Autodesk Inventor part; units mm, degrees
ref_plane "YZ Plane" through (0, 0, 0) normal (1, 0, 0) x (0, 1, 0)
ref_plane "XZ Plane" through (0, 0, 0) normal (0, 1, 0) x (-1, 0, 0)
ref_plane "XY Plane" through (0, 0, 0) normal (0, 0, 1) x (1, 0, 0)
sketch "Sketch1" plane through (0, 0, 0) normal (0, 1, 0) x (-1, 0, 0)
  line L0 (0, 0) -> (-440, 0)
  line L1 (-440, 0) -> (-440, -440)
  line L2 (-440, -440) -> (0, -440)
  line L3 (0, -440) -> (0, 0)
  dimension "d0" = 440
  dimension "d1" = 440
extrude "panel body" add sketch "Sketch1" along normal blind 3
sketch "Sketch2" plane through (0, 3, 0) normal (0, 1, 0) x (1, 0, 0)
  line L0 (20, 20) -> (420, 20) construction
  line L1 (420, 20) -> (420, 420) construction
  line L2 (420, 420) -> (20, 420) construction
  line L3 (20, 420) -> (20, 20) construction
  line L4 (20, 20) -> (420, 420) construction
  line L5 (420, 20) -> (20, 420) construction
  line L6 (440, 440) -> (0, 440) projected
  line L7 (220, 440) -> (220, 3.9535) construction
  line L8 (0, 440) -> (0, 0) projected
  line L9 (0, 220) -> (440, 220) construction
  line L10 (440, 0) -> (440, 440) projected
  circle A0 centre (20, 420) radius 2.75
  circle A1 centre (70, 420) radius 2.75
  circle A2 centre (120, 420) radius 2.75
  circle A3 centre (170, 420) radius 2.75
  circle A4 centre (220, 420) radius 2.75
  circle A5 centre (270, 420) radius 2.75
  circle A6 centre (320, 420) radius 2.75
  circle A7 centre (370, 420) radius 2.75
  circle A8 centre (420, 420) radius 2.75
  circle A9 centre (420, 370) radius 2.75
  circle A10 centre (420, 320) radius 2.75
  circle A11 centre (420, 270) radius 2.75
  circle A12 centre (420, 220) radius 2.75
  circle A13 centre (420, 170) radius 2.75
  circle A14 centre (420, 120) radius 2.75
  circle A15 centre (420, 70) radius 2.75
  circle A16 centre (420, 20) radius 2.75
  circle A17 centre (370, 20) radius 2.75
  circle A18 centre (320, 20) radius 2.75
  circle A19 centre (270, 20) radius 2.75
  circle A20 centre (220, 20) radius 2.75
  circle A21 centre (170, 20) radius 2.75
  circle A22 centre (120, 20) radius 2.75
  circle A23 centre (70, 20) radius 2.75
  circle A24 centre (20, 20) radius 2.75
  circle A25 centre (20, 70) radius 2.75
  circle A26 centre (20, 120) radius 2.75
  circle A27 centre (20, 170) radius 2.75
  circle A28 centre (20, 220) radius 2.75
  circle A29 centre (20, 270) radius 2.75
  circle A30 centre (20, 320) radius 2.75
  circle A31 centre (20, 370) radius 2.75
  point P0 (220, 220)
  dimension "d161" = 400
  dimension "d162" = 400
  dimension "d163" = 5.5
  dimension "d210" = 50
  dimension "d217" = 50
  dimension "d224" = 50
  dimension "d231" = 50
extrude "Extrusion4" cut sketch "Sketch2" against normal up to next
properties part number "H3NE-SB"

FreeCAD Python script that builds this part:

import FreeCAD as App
import Part
import Sketcher
from FreeCAD import Vector

doc = App.newDocument("Part")
body = doc.addObject("PartDesign::Body", "Body")

# Sketch on XZ plane
sketch1 = body.newObject("Sketcher::SketchObject", "Sketch")
sketch1.AttachmentSupport = (doc.getObject("XZ_Plane"), [""])
sketch1.MapMode = "FlatFace"
sketch1.addGeometry(Part.LineSegment(Vector(0, -440, 0), Vector(0, 0, 0)), False)
sketch1.addGeometry(Part.LineSegment(Vector(0, 0, 0), Vector(440, 0, 0)), False)
sketch1.addGeometry(Part.LineSegment(Vector(440, 0, 0), Vector(440, -440, 0)), False)
sketch1.addGeometry(Part.LineSegment(Vector(440, -440, 0), Vector(0, -440, 0)), False)
sketch1.addConstraint(Sketcher.Constraint("Coincident", 0, 2, 1, 1))
sketch1.addConstraint(Sketcher.Constraint("Coincident", 1, 2, 2, 1))
sketch1.addConstraint(Sketcher.Constraint("Coincident", 2, 2, 3, 1))
sketch1.addConstraint(Sketcher.Constraint("Coincident", 3, 2, 0, 1))
sketch1.addConstraint(Sketcher.Constraint("Vertical", 0))
sketch1.addConstraint(Sketcher.Constraint("Horizontal", 1))
sketch1.addConstraint(Sketcher.Constraint("Vertical", 2))
sketch1.addConstraint(Sketcher.Constraint("Horizontal", 3))
sketch1.addConstraint(Sketcher.Constraint("Coincident", 0, 2, -1, 1))
sketch1.addConstraint(Sketcher.Constraint("Equal", 3, 0))
sketch1.addConstraint(Sketcher.Constraint("DistanceX", 1, 1, 1, 2, 440.0))
pad1 = body.newObject("PartDesign::Pad", "Pad")
pad1.Profile = sketch1
pad1.Length = 3
pad1.Reversed = True

# Sketch on XZ plane
sketch2 = body.newObject("Sketcher::SketchObject", "Sketch001")
sketch2.AttachmentSupport = (doc.getObject("XZ_Plane"), [""])
sketch2.MapMode = "FlatFace"
sketch2.AttachmentOffset = App.Placement(Vector(0, 0, -3), App.Rotation())
sketch2.addGeometry(Part.Circle(Vector(20, -420, 0), Vector(0, 0, 1), 2.8), False)
sketch2.addGeometry(Part.Circle(Vector(70, -420, 0), Vector(0, 0, 1), 2.8), False)
sketch2.addGeometry(Part.Circle(Vector(120, -420, 0), Vector(0, 0, 1), 2.8), False)
sketch2.addGeometry(Part.Circle(Vector(170, -420, 0), Vector(0, 0, 1), 2.8), False)
sketch2.addGeometry(Part.Circle(Vector(220, -420, 0), Vector(0, 0, 1), 2.8), False)
sketch2.addGeometry(Part.Circle(Vector(270, -420, 0), Vector(0, 0, 1), 2.8), False)
sketch2.addGeometry(Part.Circle(Vector(320, -420, 0), Vector(0, 0, 1), 2.8), False)
sketch2.addGeometry(Part.Circle(Vector(370, -420, 0), Vector(0, 0, 1), 2.8), False)
sketch2.addGeometry(Part.Circle(Vector(420, -420, 0), Vector(0, 0, 1), 2.8), False)
sketch2.addGeometry(Part.Circle(Vector(420, -370, 0), Vector(0, 0, 1), 2.8), False)
sketch2.addGeometry(Part.Circle(Vector(420, -320, 0), Vector(0, 0, 1), 2.8), False)
sketch2.addGeometry(Part.Circle(Vector(420, -270, 0), Vector(0, 0, 1), 2.8), False)
sketch2.addGeometry(Part.Circle(Vector(420, -220, 0), Vector(0, 0, 1), 2.8), False)
sketch2.addGeometry(Part.Circle(Vector(420, -170, 0), Vector(0, 0, 1), 2.8), False)
sketch2.addGeometry(Part.Circle(Vector(420, -120, 0), Vector(0, 0, 1), 2.8), False)
sketch2.addGeometry(Part.Circle(Vector(420, -70, 0), Vector(0, 0, 1), 2.8), False)
sketch2.addGeometry(Part.Circle(Vector(420, -20, 0), Vector(0, 0, 1), 2.8), False)
sketch2.addGeometry(Part.Circle(Vector(370, -20, 0), Vector(0, 0, 1), 2.8), False)
sketch2.addGeometry(Part.Circle(Vector(320, -20, 0), Vector(0, 0, 1), 2.8), False)
sketch2.addGeometry(Part.Circle(Vector(270, -20, 0), Vector(0, 0, 1), 2.8), False)
sketch2.addGeometry(Part.Circle(Vector(220, -20, 0), Vector(0, 0, 1), 2.8), False)
sketch2.addGeometry(Part.Circle(Vector(170, -20, 0), Vector(0, 0, 1), 2.8), False)
sketch2.addGeometry(Part.Circle(Vector(120, -20, 0), Vector(0, 0, 1), 2.8), False)
sketch2.addGeometry(Part.Circle(Vector(70, -20, 0), Vector(0, 0, 1), 2.8), False)
sketch2.addGeometry(Part.Circle(Vector(20, -20, 0), Vector(0, 0, 1), 2.8), False)
sketch2.addGeometry(Part.Circle(Vector(20, -70, 0), Vector(0, 0, 1), 2.8), False)
sketch2.addGeometry(Part.Circle(Vector(20, -120, 0), Vector(0, 0, 1), 2.8), False)
sketch2.addGeometry(Part.Circle(Vector(20, -170, 0), Vector(0, 0, 1), 2.8), False)
sketch2.addGeometry(Part.Circle(Vector(20, -220, 0), Vector(0, 0, 1), 2.8), False)
sketch2.addGeometry(Part.Circle(Vector(20, -270, 0), Vector(0, 0, 1), 2.8), False)
sketch2.addGeometry(Part.Circle(Vector(20, -320, 0), Vector(0, 0, 1), 2.8), False)
sketch2.addGeometry(Part.Circle(Vector(20, -370, 0), Vector(0, 0, 1), 2.8), False)
sketch2.addConstraint(Sketcher.Constraint("Equal", 0, 1))
sketch2.addConstraint(Sketcher.Constraint("Equal", 1, 2))
sketch2.addConstraint(Sketcher.Constraint("Equal", 2, 3))
sketch2.addConstraint(Sketcher.Constraint("Equal", 3, 4))
sketch2.addConstraint(Sketcher.Constraint("Equal", 4, 5))
sketch2.addConstraint(Sketcher.Constraint("Equal", 5, 6))
sketch2.addConstraint(Sketcher.Constraint("Equal", 6, 7))
sketch2.addConstraint(Sketcher.Constraint("Equal", 7, 8))
sketch2.addConstraint(Sketcher.Constraint("Equal", 8, 9))
sketch2.addConstraint(Sketcher.Constraint("Equal", 9, 10))
sketch2.addConstraint(Sketcher.Constraint("Equal", 10, 11))
sketch2.addConstraint(Sketcher.Constraint("Equal", 11, 12))
sketch2.addConstraint(Sketcher.Constraint("Equal", 12, 13))
sketch2.addConstraint(Sketcher.Constraint("Equal", 13, 14))
sketch2.addConstraint(Sketcher.Constraint("Equal", 14, 15))
sketch2.addConstraint(Sketcher.Constraint("Equal", 15, 16))
sketch2.addConstraint(Sketcher.Constraint("Equal", 16, 17))
sketch2.addConstraint(Sketcher.Constraint("Equal", 17, 18))
sketch2.addConstraint(Sketcher.Constraint("Equal", 18, 19))
sketch2.addConstraint(Sketcher.Constraint("Equal", 19, 20))
sketch2.addConstraint(Sketcher.Constraint("Equal", 20, 21))
sketch2.addConstraint(Sketcher.Constraint("Equal", 21, 22))
sketch2.addConstraint(Sketcher.Constraint("Equal", 22, 23))
sketch2.addConstraint(Sketcher.Constraint("Equal", 23, 24))
sketch2.addConstraint(Sketcher.Constraint("Equal", 24, 25))
sketch2.addConstraint(Sketcher.Constraint("Equal", 25, 26))
sketch2.addConstraint(Sketcher.Constraint("Equal", 26, 27))
sketch2.addConstraint(Sketcher.Constraint("Equal", 27, 28))
sketch2.addConstraint(Sketcher.Constraint("Equal", 28, 29))
sketch2.addConstraint(Sketcher.Constraint("Equal", 29, 30))
sketch2.addConstraint(Sketcher.Constraint("Equal", 30, 31))
sketch2.addConstraint(Sketcher.Constraint("Horizontal", 0, 3, 1, 3))
sketch2.addConstraint(Sketcher.Constraint("Horizontal", 1, 3, 2, 3))
sketch2.addConstraint(Sketcher.Constraint("Horizontal", 2, 3, 3, 3))
sketch2.addConstraint(Sketcher.Constraint("Horizontal", 3, 3, 4, 3))
sketch2.addConstraint(Sketcher.Constraint("Horizontal", 4, 3, 5, 3))
sketch2.addConstraint(Sketcher.Constraint("Horizontal", 5, 3, 6, 3))
sketch2.addConstraint(Sketcher.Constraint("Horizontal", 6, 3, 7, 3))
sketch2.addConstraint(Sketcher.Constraint("Horizontal", 7, 3, 8, 3))
sketch2.addConstraint(Sketcher.Constraint("Horizontal", 16, 3, 17, 3))
sketch2.addConstraint(Sketcher.Constraint("Horizontal", 17, 3, 18, 3))
sketch2.addConstraint(Sketcher.Constraint("Horizontal", 18, 3, 19, 3))
sketch2.addConstraint(Sketcher.Constraint("Horizontal", 19, 3, 20, 3))
sketch2.addConstraint(Sketcher.Constraint("Horizontal", 20, 3, 21, 3))
sketch2.addConstraint(Sketcher.Constraint("Horizontal", 21, 3, 22, 3))
sketch2.addConstraint(Sketcher.Constraint("Horizontal", 22, 3, 23, 3))
sketch2.addConstraint(Sketcher.Constraint("Horizontal", 23, 3, 24, 3))
sketch2.addConstraint(Sketcher.Constraint("Horizontal", 15, 3, 25, 3))
sketch2.addConstraint(Sketcher.Constraint("Horizontal", 14, 3, 26, 3))
sketch2.addConstraint(Sketcher.Constraint("Horizontal", 13, 3, 27, 3))
sketch2.addConstraint(Sketcher.Constraint("Horizontal", 12, 3, 28, 3))
sketch2.addConstraint(Sketcher.Constraint("Horizontal", 11, 3, 29, 3))
sketch2.addConstraint(Sketcher.Constraint("Horizontal", 10, 3, 30, 3))
sketch2.addConstraint(Sketcher.Constraint("Horizontal", 9, 3, 31, 3))
sketch2.addConstraint(Sketcher.Constraint("Vertical", 8, 3, 9, 3))
sketch2.addConstraint(Sketcher.Constraint("Vertical", 9, 3, 10, 3))
sketch2.addConstraint(Sketcher.Constraint("Vertical", 10, 3, 11, 3))
sketch2.addConstraint(Sketcher.Constraint("Vertical", 11, 3, 12, 3))
sketch2.addConstraint(Sketcher.Constraint("Vertical", 12, 3, 13, 3))
sketch2.addConstraint(Sketcher.Constraint("Vertical", 13, 3, 14, 3))
sketch2.addConstraint(Sketcher.Constraint("Vertical", 14, 3, 15, 3))
sketch2.addConstraint(Sketcher.Constraint("Vertical", 15, 3, 16, 3))
sketch2.addConstraint(Sketcher.Constraint("Vertical", 7, 3, 17, 3))
sketch2.addConstraint(Sketcher.Constraint("Vertical", 6, 3, 18, 3))
sketch2.addConstraint(Sketcher.Constraint("Vertical", 5, 3, 19, 3))
sketch2.addConstraint(Sketcher.Constraint("Vertical", 4, 3, 20, 3))
sketch2.addConstraint(Sketcher.Constraint("Vertical", 3, 3, 21, 3))
sketch2.addConstraint(Sketcher.Constraint("Vertical", 2, 3, 22, 3))
sketch2.addConstraint(Sketcher.Constraint("Vertical", 1, 3, 23, 3))
sketch2.addConstraint(Sketcher.Constraint("Vertical", 0, 3, 24, 3))
sketch2.addConstraint(Sketcher.Constraint("Vertical", 24, 3, 25, 3))
sketch2.addConstraint(Sketcher.Constraint("Vertical", 25, 3, 26, 3))
sketch2.addConstraint(Sketcher.Constraint("Vertical", 26, 3, 27, 3))
sketch2.addConstraint(Sketcher.Constraint("Vertical", 27, 3, 28, 3))
sketch2.addConstraint(Sketcher.Constraint("Vertical", 28, 3, 29, 3))
sketch2.addConstraint(Sketcher.Constraint("Vertical", 29, 3, 30, 3))
sketch2.addConstraint(Sketcher.Constraint("Vertical", 30, 3, 31, 3))
sketch2.addConstraint(Sketcher.Constraint("Diameter", 0, 5.5))
sketch2.addConstraint(Sketcher.Constraint("DistanceX", 0, 3, 1, 3, 50.0))
sketch2.addConstraint(Sketcher.Constraint("DistanceX", 1, 3, 2, 3, 50.0))
sketch2.addConstraint(Sketcher.Constraint("DistanceX", 2, 3, 3, 3, 50.0))
sketch2.addConstraint(Sketcher.Constraint("DistanceX", 3, 3, 4, 3, 50.0))
sketch2.addConstraint(Sketcher.Constraint("DistanceX", 4, 3, 5, 3, 50.0))
sketch2.addConstraint(Sketcher.Constraint("DistanceX", 5, 3, 6, 3, 50.0))
sketch2.addConstraint(Sketcher.Constraint("DistanceX", 6, 3, 7, 3, 50.0))
sketch2.addConstraint(Sketcher.Constraint("DistanceX", 7, 3, 8, 3, 50.0))
sketch2.addConstraint(Sketcher.Constraint("DistanceY", 8, 3, 9, 3, 50.0))
sketch2.addConstraint(Sketcher.Constraint("DistanceY", 9, 3, 10, 3, 50.0))
sketch2.addConstraint(Sketcher.Constraint("DistanceY", 10, 3, 11, 3, 50.0))
sketch2.addConstraint(Sketcher.Constraint("DistanceY", 11, 3, 12, 3, 50.0))
sketch2.addConstraint(Sketcher.Constraint("DistanceY", 12, 3, 13, 3, 50.0))
sketch2.addConstraint(Sketcher.Constraint("DistanceY", 13, 3, 14, 3, 50.0))
sketch2.addConstraint(Sketcher.Constraint("DistanceY", 14, 3, 15, 3, 50.0))
sketch2.addConstraint(Sketcher.Constraint("DistanceY", 15, 3, 16, 3, 50.0))
sketch2.addConstraint(Sketcher.Constraint("DistanceX", -1, 1, 0, 3, 20.0))
sketch2.addConstraint(Sketcher.Constraint("DistanceY", 0, 3, -1, 1, 420.0))
pocket1 = body.newObject("PartDesign::Pocket", "Pocket")
pocket1.Profile = sketch2
pocket1.Type = "UpToFirst"
pocket1.Reversed = True

doc.recompute()
